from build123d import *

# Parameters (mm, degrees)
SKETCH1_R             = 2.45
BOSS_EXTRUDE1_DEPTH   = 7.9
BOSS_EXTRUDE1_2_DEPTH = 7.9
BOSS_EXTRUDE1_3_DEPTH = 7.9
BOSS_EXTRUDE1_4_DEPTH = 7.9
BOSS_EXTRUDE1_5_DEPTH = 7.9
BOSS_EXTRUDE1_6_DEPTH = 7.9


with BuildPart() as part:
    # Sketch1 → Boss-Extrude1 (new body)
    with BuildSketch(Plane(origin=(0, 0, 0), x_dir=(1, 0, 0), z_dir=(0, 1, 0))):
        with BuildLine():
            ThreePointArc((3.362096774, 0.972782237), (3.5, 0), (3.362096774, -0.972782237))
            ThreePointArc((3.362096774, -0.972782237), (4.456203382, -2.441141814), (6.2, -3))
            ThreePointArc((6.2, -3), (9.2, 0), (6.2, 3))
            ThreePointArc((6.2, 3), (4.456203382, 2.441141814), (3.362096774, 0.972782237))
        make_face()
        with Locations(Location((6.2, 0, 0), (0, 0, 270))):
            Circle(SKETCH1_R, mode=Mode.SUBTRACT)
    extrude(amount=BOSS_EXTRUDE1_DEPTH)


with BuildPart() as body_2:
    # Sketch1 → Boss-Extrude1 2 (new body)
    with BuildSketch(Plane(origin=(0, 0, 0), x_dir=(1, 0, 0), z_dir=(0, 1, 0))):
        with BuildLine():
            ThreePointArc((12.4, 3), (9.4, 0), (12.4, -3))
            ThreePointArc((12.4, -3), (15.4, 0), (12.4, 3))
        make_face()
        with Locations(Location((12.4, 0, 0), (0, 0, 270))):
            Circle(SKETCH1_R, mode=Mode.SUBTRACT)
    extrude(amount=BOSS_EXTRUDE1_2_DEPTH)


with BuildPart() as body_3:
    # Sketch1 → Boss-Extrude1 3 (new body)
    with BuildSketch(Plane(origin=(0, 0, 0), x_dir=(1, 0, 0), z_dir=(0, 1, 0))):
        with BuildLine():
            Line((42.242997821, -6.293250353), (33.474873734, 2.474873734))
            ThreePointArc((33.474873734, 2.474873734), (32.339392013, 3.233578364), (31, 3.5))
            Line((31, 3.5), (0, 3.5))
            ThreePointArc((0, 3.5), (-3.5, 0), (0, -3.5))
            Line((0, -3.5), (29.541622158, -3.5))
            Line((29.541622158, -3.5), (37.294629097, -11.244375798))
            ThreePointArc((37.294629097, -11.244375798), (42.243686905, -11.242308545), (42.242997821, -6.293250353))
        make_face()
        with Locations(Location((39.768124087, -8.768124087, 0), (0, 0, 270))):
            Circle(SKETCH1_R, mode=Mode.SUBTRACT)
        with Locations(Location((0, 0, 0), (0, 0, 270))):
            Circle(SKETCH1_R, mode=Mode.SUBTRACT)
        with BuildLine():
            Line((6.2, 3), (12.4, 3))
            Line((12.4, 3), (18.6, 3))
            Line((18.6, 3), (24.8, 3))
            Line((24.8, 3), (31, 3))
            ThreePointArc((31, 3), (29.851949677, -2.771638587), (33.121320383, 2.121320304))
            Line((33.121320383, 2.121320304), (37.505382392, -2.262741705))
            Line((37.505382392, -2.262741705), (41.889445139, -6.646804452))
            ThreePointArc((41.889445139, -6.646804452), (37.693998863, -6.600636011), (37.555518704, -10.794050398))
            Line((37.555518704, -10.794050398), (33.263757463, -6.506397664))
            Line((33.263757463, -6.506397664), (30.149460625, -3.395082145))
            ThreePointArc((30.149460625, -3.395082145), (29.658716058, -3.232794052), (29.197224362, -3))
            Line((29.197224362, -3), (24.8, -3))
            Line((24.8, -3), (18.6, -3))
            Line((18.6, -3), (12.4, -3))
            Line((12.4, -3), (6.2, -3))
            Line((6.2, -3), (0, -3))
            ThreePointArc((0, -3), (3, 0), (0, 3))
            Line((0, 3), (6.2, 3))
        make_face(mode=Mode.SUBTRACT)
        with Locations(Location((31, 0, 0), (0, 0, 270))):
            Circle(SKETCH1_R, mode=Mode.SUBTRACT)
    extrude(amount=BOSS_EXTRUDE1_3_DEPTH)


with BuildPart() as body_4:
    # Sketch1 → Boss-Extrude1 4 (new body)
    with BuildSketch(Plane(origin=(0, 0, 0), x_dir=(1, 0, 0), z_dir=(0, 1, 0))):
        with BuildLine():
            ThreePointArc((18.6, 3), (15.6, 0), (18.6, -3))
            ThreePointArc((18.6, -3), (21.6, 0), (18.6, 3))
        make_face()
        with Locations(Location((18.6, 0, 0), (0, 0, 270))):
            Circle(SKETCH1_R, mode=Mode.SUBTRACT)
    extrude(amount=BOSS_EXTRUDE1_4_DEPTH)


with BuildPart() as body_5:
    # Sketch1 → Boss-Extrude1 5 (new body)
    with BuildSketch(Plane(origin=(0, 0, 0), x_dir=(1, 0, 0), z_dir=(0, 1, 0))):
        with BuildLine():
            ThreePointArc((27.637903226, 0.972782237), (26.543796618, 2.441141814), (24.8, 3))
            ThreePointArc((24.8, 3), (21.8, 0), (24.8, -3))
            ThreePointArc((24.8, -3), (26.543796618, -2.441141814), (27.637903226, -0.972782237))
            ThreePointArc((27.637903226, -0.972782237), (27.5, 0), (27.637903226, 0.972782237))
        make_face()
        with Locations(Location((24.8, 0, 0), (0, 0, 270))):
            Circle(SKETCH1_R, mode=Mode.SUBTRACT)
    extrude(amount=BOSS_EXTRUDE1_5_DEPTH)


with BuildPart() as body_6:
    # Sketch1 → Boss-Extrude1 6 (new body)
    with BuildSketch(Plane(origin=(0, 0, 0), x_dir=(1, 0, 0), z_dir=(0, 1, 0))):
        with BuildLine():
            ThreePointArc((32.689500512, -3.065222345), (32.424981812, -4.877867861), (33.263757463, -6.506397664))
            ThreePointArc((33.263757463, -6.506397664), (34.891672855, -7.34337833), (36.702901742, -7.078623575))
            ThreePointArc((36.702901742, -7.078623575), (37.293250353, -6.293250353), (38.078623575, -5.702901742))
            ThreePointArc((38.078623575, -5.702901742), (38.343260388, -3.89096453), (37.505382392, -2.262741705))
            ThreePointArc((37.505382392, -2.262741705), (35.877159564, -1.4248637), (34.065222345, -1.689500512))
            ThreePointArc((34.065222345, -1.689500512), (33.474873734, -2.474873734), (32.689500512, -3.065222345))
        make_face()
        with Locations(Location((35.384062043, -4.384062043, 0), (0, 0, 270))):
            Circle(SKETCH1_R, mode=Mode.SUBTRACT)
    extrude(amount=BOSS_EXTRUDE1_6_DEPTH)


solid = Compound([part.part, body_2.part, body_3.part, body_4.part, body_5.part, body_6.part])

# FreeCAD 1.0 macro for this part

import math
import FreeCAD as App
import Part
import Sketcher
from FreeCAD import Vector
Q = App.Units.Quantity

doc = App.newDocument("Part")
body = doc.addObject("PartDesign::Body", "Body")

# Sketch on XZ plane
sketch1 = body.newObject("Sketcher::SketchObject", "Sketch")
sketch1.AttachmentSupport = (doc.getObject("XZ_Plane"), [""])
sketch1.MapMode = "FlatFace"
sketch1.addGeometry(Part.ArcOfCircle(Part.Circle(Vector(0, 0, 0), Vector(0, 0, 1), 3.5), math.radians(-16.137164), math.radians(16.137164)), False)
sketch1.addGeometry(Part.ArcOfCircle(Part.Circle(Vector(6.2, 0, 0), Vector(0, 0, 1), 3), math.radians(90), math.radians(161.079206)), False)
sketch1.addGeometry(Part.ArcOfCircle(Part.Circle(Vector(6.2, 0, 0), Vector(0, 0, 1), 3), math.radians(-90), math.radians(90)), False)
sketch1.addGeometry(Part.ArcOfCircle(Part.Circle(Vector(6.2, 0, 0), Vector(0, 0, 1), 3), math.radians(-161.079206), math.radians(-90)), False)
sketch1.addGeometry(Part.Circle(Vector(6.2, 0, 0), Vector(0, 0, 1), 2.45), False)
sketch1.addConstraint(Sketcher.Constraint("Coincident", 0, 2, 1, 2))
sketch1.addConstraint(Sketcher.Constraint("Tangent", 1, 1, 2, 2))
sketch1.addConstraint(Sketcher.Constraint("Tangent", 2, 1, 3, 2))
sketch1.addConstraint(Sketcher.Constraint("Coincident", 3, 1, 0, 1))
sketch1.addConstraint(Sketcher.Constraint("Coincident", 0, 3, -1, 1))
sketch1.addConstraint(Sketcher.Constraint("Coincident", 4, 3, 1, 3))
sketch1.addConstraint(Sketcher.Constraint("Equal", 1, 2))
sketch1.addConstraint(Sketcher.Constraint("Equal", 2, 3))
sketch1.addConstraint(Sketcher.Constraint("Symmetric", 1, 1, 2, 1, -1))
sketch1.addConstraint(Sketcher.Constraint("Vertical", 4, 3, 1, 1))
sketch1.addConstraint(Sketcher.Constraint("Radius", 1, Q("3 mm")))
sketch1.addConstraint(Sketcher.Constraint("Diameter", 4, Q("4.9 mm")))
sketch1.addConstraint(Sketcher.Constraint("Radius", 0, Q("3.5 mm")))
sketch1.addConstraint(Sketcher.Constraint("DistanceX", -1, 1, 1, 3, Q("6.2 mm")))
pad1 = body.newObject("PartDesign::Pad", "Pad")
pad1.Profile = sketch1
pad1.Length = 7.9
pad1.Reversed = True
body2 = doc.addObject("PartDesign::Body", "Body001")

# Sketch on XZ plane
sketch2 = body2.newObject("Sketcher::SketchObject", "Sketch001")
sketch2.AttachmentSupport = (doc.getObject("XZ_Plane001"), [""])
sketch2.MapMode = "FlatFace"
sketch2.addGeometry(Part.Circle(Vector(12.4, 0, 0), Vector(0, 0, 1), 3), False)
sketch2.addGeometry(Part.Circle(Vector(12.4, 0, 0), Vector(0, 0, 1), 2.45), False)
sketch2.addConstraint(Sketcher.Constraint("Coincident", 1, 3, 0, 3))
sketch2.addConstraint(Sketcher.Constraint("PointOnObject", 0, 3, -1))
sketch2.addConstraint(Sketcher.Constraint("Diameter", 0, Q("6 mm")))
sketch2.addConstraint(Sketcher.Constraint("Diameter", 1, Q("4.9 mm")))
sketch2.addConstraint(Sketcher.Constraint("DistanceX", -1, 1, 0, 3, Q("12.4 mm")))
pad2 = body2.newObject("PartDesign::Pad", "Pad001")
pad2.Profile = sketch2
pad2.Length = 7.9
pad2.Reversed = True
body3 = doc.addObject("PartDesign::Body", "Body002")

# Sketch on XZ plane
sketch3 = body3.newObject("Sketcher::SketchObject", "Sketch002")
sketch3.AttachmentSupport = (doc.getObject("XZ_Plane002"), [""])
sketch3.MapMode = "FlatFace"
sketch3.addGeometry(Part.LineSegment(Vector(42.242998, 6.29325, 0), Vector(33.474874, -2.474874, 0)), False)
sketch3.addGeometry(Part.ArcOfCircle(Part.Circle(Vector(31, 0, 0), Vector(0, 0, 1), 3.5), math.radians(-90), math.radians(-45)), False)
sketch3.addGeometry(Part.LineSegment(Vector(31, -3.5, 0), Vector(0, -3.5, 0)), False)
sketch3.addGeometry(Part.ArcOfCircle(Part.Circle(Vector(0, 0, 0), Vector(0, 0, 1), 3.5), math.radians(90), math.radians(270)), False)
sketch3.addGeometry(Part.LineSegment(Vector(0, 3.5, 0), Vector(29.541622, 3.5, 0)), False)
sketch3.addGeometry(Part.LineSegment(Vector(29.541622, 3.5, 0), Vector(37.294629, 11.244376, 0)), False)
sketch3.addGeometry(Part.ArcOfCircle(Part.Circle(Vector(39.768124, 8.768124, 0), Vector(0, 0, 1), 3.5), math.radians(-45), math.radians(134.96809)), False)
sketch3.addGeometry(Part.Circle(Vector(39.768124, 8.768124, 0), Vector(0, 0, 1), 2.45), False)
sketch3.addGeometry(Part.Circle(Vector(0, 0, 0), Vector(0, 0, 1), 2.45), False)
sketch3.addGeometry(Part.LineSegment(Vector(0, -3, 0), Vector(31, -3, 0)), False)
sketch3.addGeometry(Part.ArcOfCircle(Part.Circle(Vector(31, 0, 0), Vector(0, 0, 1), 3), math.radians(-44.999999), math.radians(270)), False)
sketch3.addGeometry(Part.LineSegment(Vector(33.12132, -2.12132, 0), Vector(41.889445, 6.646804, 0)), False)
sketch3.addGeometry(Part.ArcOfCircle(Part.Circle(Vector(39.768124, 8.768124, 0), Vector(0, 0, 1), 3), math.radians(137.521867), math.radians(315.000019)), False)
sketch3.addGeometry(Part.LineSegment(Vector(37.555519, 10.79405, 0), Vector(33.263757, 6.506398, 0)), False)
sketch3.addGeometry(Part.LineSegment(Vector(33.263757, 6.506398, 0), Vector(30.149461, 3.395082, 0)), False)
sketch3.addGeometry(Part.ArcOfCircle(Part.Circle(Vector(31, 0, 0), Vector(0, 0, 1), 3.5), math.radians(104.064335), math.radians(121.002719)), False)
sketch3.addGeometry(Part.LineSegment(Vector(29.197224, 3, 0), Vector(0, 3, 0)), False)
sketch3.addGeometry(Part.ArcOfCircle(Part.Circle(Vector(0, 0, 0), Vector(0, 0, 1), 3), math.radians(-90), math.radians(90)), False)
sketch3.addGeometry(Part.Circle(Vector(31, 0, 0), Vector(0, 0, 1), 2.45), False)
sketch3.addConstraint(Sketcher.Constraint("Tangent", 0, 2, 1, 2))
sketch3.addConstraint(Sketcher.Constraint("Tangent", 1, 1, 2, 1))
sketch3.addConstraint(Sketcher.Constraint("Tangent", 2, 2, 3, 2))
sketch3.addConstraint(Sketcher.Constraint("Tangent", 3, 1, 4, 1))
sketch3.addConstraint(Sketcher.Constraint("Coincident", 4, 2, 5, 1))
sketch3.addConstraint(Sketcher.Constraint("Tangent", 5, 2, 6, 2))
sketch3.addConstraint(Sketcher.Constraint("Tangent", 6, 1, 0, 1))
sketch3.addConstraint(Sketcher.Constraint("Tangent", 9, 2, 10, 2))
sketch3.addConstraint(Sketcher.Constraint("Tangent", 10, 1, 11, 1))
sketch3.addConstraint(Sketcher.Constraint("Tangent", 11, 2, 12, 2))
sketch3.addConstraint(Sketcher.Constraint("Coincident", 12, 1, 13, 1))
sketch3.addConstraint(Sketcher.Constraint("Coincident", 13, 2, 14, 1))
sketch3.addConstraint(Sketcher.Constraint("Coincident", 14, 2, 15, 1))
sketch3.addConstraint(Sketcher.Constraint("Coincident", 15, 2, 16, 1))
sketch3.addConstraint(Sketcher.Constraint("Tangent", 16, 2, 17, 2))
sketch3.addConstraint(Sketcher.Constraint("Tangent", 17, 1, 9, 1))
sketch3.addConstraint(Sketcher.Constraint("Horizontal", 2))
sketch3.addConstraint(Sketcher.Constraint("Horizontal", 4))
sketch3.addConstraint(Sketcher.Constraint("Horizontal", 9))
sketch3.addConstraint(Sketcher.Constraint("Horizontal", 16))
sketch3.addConstraint(Sketcher.Constraint("Coincident", 3, 3, -1, 1))
sketch3.addConstraint(Sketcher.Constraint("Coincident", 8, 3, -1, 1))
sketch3.addConstraint(Sketcher.Constraint("Coincident", 17, 3, -1, 1))
sketch3.addConstraint(Sketcher.Constraint("Coincident", 7, 3, 6, 3))
sketch3.addConstraint(Sketcher.Constraint("Coincident", 10, 3, 1, 3))
sketch3.addConstraint(Sketcher.Constraint("Coincident", 12, 3, 6, 3))
sketch3.addConstraint(Sketcher.Constraint("Coincident", 15, 3, 1, 3))
sketch3.addConstraint(Sketcher.Constraint("Coincident", 18, 3, 1, 3))
sketch3.addConstraint(Sketcher.Constraint("Equal", 1, 3))
sketch3.addConstraint(Sketcher.Constraint("Equal", 3, 6))
sketch3.addConstraint(Sketcher.Constraint("Equal", 7, 8))
sketch3.addConstraint(Sketcher.Constraint("Equal", 10, 12))
sketch3.addConstraint(Sketcher.Constraint("Equal", 6, 15))
sketch3.addConstraint(Sketcher.Constraint("Equal", 8, 18))
sketch3.addConstraint(Sketcher.Constraint("Parallel", 13, 14))
sketch3.addConstraint(Sketcher.Constraint("Radius", 10, Q("3 mm")))
sketch3.addConstraint(Sketcher.Constraint("Diameter", 7, Q("4.9 mm")))
sketch3.addConstraint(Sketcher.Constraint("Radius", 1, Q("3.5 mm")))
sketch3.addConstraint(Sketcher.Constraint("DistanceX", 2, 2, 2, 1, Q("31 mm")))
sketch3.addConstraint(Sketcher.Constraint("Angle", 0, Q("-135 deg")))
sketch3.addConstraint(Sketcher.Constraint("Distance", 0, Q("12.4 mm")))
sketch3.addConstraint(Sketcher.Constraint("DistanceX", 4, 1, 4, 2, Q("29.541622 mm")))
sketch3.addConstraint(Sketcher.Constraint("DistanceX", -1, 1, 12, 1, Q("37.555519 mm")))
sketch3.addConstraint(Sketcher.Constraint("DistanceX", -1, 1, 14, 2, Q("30.149461 mm")))
sketch3.addConstraint(Sketcher.Constraint("DistanceX", 13, 2, 12, 1, Q("4.291761 mm")))
pad3 = body3.newObject("PartDesign::Pad", "Pad002")
pad3.Profile = sketch3
pad3.Length = 7.9
pad3.Reversed = True
body4 = doc.addObject("PartDesign::Body", "Body003")

# Sketch on XZ plane
sketch4 = body4.newObject("Sketcher::SketchObject", "Sketch003")
sketch4.AttachmentSupport = (doc.getObject("XZ_Plane003"), [""])
sketch4.MapMode = "FlatFace"
sketch4.addGeometry(Part.Circle(Vector(18.6, 0, 0), Vector(0, 0, 1), 3), False)
sketch4.addGeometry(Part.Circle(Vector(18.6, 0, 0), Vector(0, 0, 1), 2.45), False)
sketch4.addConstraint(Sketcher.Constraint("Coincident", 1, 3, 0, 3))
sketch4.addConstraint(Sketcher.Constraint("PointOnObject", 0, 3, -1))
sketch4.addConstraint(Sketcher.Constraint("Diameter", 0, Q("6 mm")))
sketch4.addConstraint(Sketcher.Constraint("Diameter", 1, Q("4.9 mm")))
sketch4.addConstraint(Sketcher.Constraint("DistanceX", -1, 1, 0, 3, Q("18.6 mm")))
pad4 = body4.newObject("PartDesign::Pad", "Pad003")
pad4.Profile = sketch4
pad4.Length = 7.9
pad4.Reversed = True
body5 = doc.addObject("PartDesign::Body", "Body004")

# Sketch on XZ plane
sketch5 = body5.newObject("Sketcher::SketchObject", "Sketch004")
sketch5.AttachmentSupport = (doc.getObject("XZ_Plane004"), [""])
sketch5.MapMode = "FlatFace"
sketch5.addGeometry(Part.ArcOfCircle(Part.Circle(Vector(24.8, 0, 0), Vector(0, 0, 1), 3), math.radians(-90), math.radians(-18.920794)), False)
sketch5.addGeometry(Part.ArcOfCircle(Part.Circle(Vector(24.8, 0, 0), Vector(0, 0, 1), 3), math.radians(90), math.radians(270)), False)
sketch5.addGeometry(Part.ArcOfCircle(Part.Circle(Vector(24.8, 0, 0), Vector(0, 0, 1), 3), math.radians(18.920794), math.radians(90)), False)
sketch5.addGeometry(Part.ArcOfCircle(Part.Circle(Vector(31, 0, 0), Vector(0, 0, 1), 3.5), math.radians(163.862836), math.radians(196.137164)), False)
sketch5.addGeometry(Part.Circle(Vector(24.8, 0, 0), Vector(0, 0, 1), 2.45), False)
sketch5.addConstraint(Sketcher.Constraint("Tangent", 0, 1, 1, 2))
sketch5.addConstraint(Sketcher.Constraint("Tangent", 1, 1, 2, 2))
sketch5.addConstraint(Sketcher.Constraint("Coincident", 2, 1, 3, 1))
sketch5.addConstraint(Sketcher.Constraint("Coincident", 3, 2, 0, 2))
sketch5.addConstraint(Sketcher.Constraint("Coincident", 4, 3, 0, 3))
sketch5.addConstraint(Sketcher.Constraint("Equal", 0, 1))
sketch5.addConstraint(Sketcher.Constraint("Equal", 1, 2))
sketch5.addConstraint(Sketcher.Constraint("Symmetric", 0, 1, 1, 1, -1))
sketch5.addConstraint(Sketcher.Constraint("PointOnObject", 3, 3, -1))
sketch5.addConstraint(Sketcher.Constraint("Vertical", 4, 3, 0, 1))
sketch5.addConstraint(Sketcher.Constraint("Radius", 0, Q("3 mm")))
sketch5.addConstraint(Sketcher.Constraint("Diameter", 4, Q("4.9 mm")))
sketch5.addConstraint(Sketcher.Constraint("Radius", 3, Q("3.5 mm")))
sketch5.addConstraint(Sketcher.Constraint("DistanceX", -1, 1, 3, 3, Q("31 mm")))
sketch5.addConstraint(Sketcher.Constraint("DistanceX", -1, 1, 0, 3, Q("24.8 mm")))
pad5 = body5.newObject("PartDesign::Pad", "Pad004")
pad5.Profile = sketch5
pad5.Length = 7.9
pad5.Reversed = True
body6 = doc.addObject("PartDesign::Body", "Body005")

# Sketch on XZ plane
sketch6 = body6.newObject("Sketcher::SketchObject", "Sketch005")
sketch6.AttachmentSupport = (doc.getObject("XZ_Plane005"), [""])
sketch6.MapMode = "FlatFace"
sketch6.addGeometry(Part.ArcOfCircle(Part.Circle(Vector(35.384062, 4.384062, 0), Vector(0, 0, 1), 3), math.radians(134.972571), math.radians(206.079207)), False)
sketch6.addGeometry(Part.ArcOfCircle(Part.Circle(Vector(35.384062, 4.384062, 0), Vector(0, 0, 1), 3), math.radians(63.920794), math.radians(134.972571)), False)
sketch6.addGeometry(Part.ArcOfCircle(Part.Circle(Vector(39.768124, 8.768124, 0), Vector(0, 0, 1), 3.5), math.radians(-151.137163), math.radians(-118.862837)), False)
sketch6.addGeometry(Part.ArcOfCircle(Part.Circle(Vector(35.384062, 4.384062, 0), Vector(0, 0, 1), 3), math.radians(-45), math.radians(26.079207)), False)
sketch6.addGeometry(Part.ArcOfCircle(Part.Circle(Vector(35.384062, 4.384062, 0), Vector(0, 0, 1), 3), math.radians(-116.079207), math.radians(-45)), False)
sketch6.addGeometry(Part.ArcOfCircle(Part.Circle(Vector(31, 0, 0), Vector(0, 0, 1), 3.5), math.radians(28.862837), math.radians(61.137163)), False)
sketch6.addGeometry(Part.Circle(Vector(35.384062, 4.384062, 0), Vector(0, 0, 1), 2.45), False)
sketch6.addConstraint(Sketcher.Constraint("Tangent", 0, 1, 1, 2))
sketch6.addConstraint(Sketcher.Constraint("Coincident", 1, 1, 2, 1))
sketch6.addConstraint(Sketcher.Constraint("Coincident", 2, 2, 3, 2))
sketch6.addConstraint(Sketcher.Constraint("Tangent", 3, 1, 4, 2))
sketch6.addConstraint(Sketcher.Constraint("Coincident", 4, 1, 5, 1))
sketch6.addConstraint(Sketcher.Constraint("Coincident", 5, 2, 0, 2))
sketch6.addConstraint(Sketcher.Constraint("Coincident", 3, 3, 0, 3))
sketch6.addConstraint(Sketcher.Constraint("Coincident", 6, 3, 0, 3))
sketch6.addConstraint(Sketcher.Constraint("Equal", 0, 1))
sketch6.addConstraint(Sketcher.Constraint("Equal", 1, 3))
sketch6.addConstraint(Sketcher.Constraint("Equal", 3, 4))
sketch6.addConstraint(Sketcher.Constraint("Equal", 2, 5))
sketch6.addConstraint(Sketcher.Constraint("PointOnObject", 5, 3, -1))
sketch6.addConstraint(Sketcher.Constraint("Radius", 0, Q("3 mm")))
sketch6.addConstraint(Sketcher.Constraint("Diameter", 6, Q("4.9 mm")))
sketch6.addConstraint(Sketcher.Constraint("Radius", 2, Q("3.5 mm")))
sketch6.addConstraint(Sketcher.Constraint("DistanceX", -1, 1, 5, 3, Q("31 mm")))
sketch6.addConstraint(Sketcher.Constraint("DistanceX", -1, 1, 1, 1, Q("36.702902 mm")))
sketch6.addConstraint(Sketcher.Constraint("DistanceY", -1, 1, 2, 2, Q("5.702902 mm")))
sketch6.addConstraint(Sketcher.Constraint("DistanceY", -1, 1, 4, 1, Q("1.689501 mm")))
sketch6.addConstraint(Sketcher.Constraint("DistanceX", -1, 1, 5, 2, Q("32.689501 mm")))
sketch6.addConstraint(Sketcher.Constraint("DistanceY", -1, 1, 3, 1, Q("2.262742 mm")))
sketch6.addConstraint(Sketcher.Constraint("DistanceX", -1, 1, 0, 1, Q("33.263757 mm")))
pad6 = body6.newObject("PartDesign::Pad", "Pad005")
pad6.Profile = sketch6
pad6.Length = 7.9
pad6.Reversed = True

doc.recompute()
